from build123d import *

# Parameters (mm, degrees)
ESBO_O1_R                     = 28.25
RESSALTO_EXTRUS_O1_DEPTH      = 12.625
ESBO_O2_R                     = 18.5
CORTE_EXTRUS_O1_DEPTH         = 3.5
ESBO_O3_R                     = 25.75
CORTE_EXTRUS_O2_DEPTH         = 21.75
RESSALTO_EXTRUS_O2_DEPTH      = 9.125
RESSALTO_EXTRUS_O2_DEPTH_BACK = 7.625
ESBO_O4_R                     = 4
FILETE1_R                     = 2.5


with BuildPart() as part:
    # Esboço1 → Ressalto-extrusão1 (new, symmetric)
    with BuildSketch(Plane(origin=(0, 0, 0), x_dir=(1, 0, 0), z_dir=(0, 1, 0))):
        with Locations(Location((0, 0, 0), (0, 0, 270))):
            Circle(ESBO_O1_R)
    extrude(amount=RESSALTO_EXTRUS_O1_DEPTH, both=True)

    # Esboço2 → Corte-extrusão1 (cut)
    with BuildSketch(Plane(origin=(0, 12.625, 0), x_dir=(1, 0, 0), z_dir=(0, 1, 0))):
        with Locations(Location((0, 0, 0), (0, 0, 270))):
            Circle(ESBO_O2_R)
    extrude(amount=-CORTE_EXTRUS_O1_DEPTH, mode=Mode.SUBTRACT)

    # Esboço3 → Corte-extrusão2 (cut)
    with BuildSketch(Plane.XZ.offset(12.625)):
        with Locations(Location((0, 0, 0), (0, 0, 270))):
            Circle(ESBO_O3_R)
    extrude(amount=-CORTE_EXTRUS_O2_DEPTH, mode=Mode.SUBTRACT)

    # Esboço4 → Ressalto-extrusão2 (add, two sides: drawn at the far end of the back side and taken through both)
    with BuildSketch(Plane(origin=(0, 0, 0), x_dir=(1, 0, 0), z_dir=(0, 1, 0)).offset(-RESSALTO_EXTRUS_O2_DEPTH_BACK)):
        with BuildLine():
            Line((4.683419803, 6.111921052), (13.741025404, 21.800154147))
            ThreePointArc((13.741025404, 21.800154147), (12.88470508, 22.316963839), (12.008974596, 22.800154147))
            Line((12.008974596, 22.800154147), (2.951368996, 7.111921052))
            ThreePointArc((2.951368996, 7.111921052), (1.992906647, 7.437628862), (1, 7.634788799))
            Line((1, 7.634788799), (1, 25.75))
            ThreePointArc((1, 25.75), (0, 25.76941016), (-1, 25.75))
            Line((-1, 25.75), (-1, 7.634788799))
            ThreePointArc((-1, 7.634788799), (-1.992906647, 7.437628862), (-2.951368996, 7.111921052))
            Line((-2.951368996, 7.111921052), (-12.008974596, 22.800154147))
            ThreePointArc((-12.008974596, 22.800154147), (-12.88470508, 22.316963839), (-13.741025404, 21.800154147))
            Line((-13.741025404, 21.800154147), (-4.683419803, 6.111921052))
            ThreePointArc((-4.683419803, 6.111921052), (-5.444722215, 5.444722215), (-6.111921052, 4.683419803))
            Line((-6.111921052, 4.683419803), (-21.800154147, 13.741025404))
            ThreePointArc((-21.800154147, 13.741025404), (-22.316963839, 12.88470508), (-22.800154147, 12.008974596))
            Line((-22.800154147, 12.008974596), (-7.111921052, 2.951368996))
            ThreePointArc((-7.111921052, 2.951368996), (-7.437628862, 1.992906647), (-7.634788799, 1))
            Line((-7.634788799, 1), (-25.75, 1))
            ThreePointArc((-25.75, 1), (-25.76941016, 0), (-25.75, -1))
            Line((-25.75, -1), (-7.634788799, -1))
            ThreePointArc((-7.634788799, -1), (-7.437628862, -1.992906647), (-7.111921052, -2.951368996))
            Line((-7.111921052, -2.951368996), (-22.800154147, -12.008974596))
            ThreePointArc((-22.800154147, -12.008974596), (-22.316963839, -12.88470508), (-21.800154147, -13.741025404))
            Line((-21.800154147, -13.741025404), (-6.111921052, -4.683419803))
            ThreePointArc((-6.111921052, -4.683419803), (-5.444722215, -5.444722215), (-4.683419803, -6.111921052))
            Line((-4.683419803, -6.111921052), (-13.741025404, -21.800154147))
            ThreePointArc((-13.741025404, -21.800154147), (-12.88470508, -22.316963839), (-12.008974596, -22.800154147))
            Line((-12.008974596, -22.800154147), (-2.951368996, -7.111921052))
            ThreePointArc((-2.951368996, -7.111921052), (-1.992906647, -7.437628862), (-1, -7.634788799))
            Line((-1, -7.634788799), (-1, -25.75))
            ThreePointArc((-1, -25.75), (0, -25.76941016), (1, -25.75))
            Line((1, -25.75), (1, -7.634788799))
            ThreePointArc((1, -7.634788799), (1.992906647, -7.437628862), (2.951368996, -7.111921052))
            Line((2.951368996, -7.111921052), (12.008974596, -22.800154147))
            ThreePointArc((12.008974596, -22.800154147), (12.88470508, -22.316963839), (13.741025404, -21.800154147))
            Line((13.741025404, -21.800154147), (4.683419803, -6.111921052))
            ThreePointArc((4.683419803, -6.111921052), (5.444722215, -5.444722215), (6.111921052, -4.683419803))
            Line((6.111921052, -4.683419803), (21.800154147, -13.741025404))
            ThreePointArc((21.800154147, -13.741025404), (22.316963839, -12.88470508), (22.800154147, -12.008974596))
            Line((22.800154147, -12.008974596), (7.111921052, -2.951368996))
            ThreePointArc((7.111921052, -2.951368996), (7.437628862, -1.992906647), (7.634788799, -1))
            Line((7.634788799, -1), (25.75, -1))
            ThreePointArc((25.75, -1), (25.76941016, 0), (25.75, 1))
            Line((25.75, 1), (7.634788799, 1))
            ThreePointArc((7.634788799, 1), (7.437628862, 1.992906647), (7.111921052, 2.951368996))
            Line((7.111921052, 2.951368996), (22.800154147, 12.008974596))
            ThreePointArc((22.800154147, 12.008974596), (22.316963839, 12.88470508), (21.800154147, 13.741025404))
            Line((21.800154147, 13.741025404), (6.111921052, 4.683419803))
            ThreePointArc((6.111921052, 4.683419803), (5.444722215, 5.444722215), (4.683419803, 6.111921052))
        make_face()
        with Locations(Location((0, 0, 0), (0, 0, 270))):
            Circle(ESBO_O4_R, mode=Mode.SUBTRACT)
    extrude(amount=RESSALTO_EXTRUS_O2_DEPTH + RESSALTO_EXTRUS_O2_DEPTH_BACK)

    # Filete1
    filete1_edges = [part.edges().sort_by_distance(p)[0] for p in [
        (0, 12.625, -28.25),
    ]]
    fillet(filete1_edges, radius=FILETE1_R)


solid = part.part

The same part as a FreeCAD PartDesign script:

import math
import FreeCAD as App
import Part
import Sketcher
from FreeCAD import Vector
Q = App.Units.Quantity


def edges_at(feature, points):
    """Names of the edges that pass closest to the given points."""
    edges = feature.Shape.Edges
    near = lambda p: min(range(len(edges)), key=lambda i: edges[i].distToShape(Part.Vertex(*p))[0])
    return sorted({f"Edge{near(p) + 1}" for p in points})

doc = App.newDocument("Part")
body = doc.addObject("PartDesign::Body", "Body")

# Sketch on XZ plane
sketch1 = body.newObject("Sketcher::SketchObject", "Sketch")
sketch1.AttachmentSupport = (doc.getObject("XZ_Plane"), [""])
sketch1.MapMode = "FlatFace"
sketch1.addGeometry(Part.Circle(Vector(0, 0, 0), Vector(0, 0, 1), 28), False)
sketch1.addConstraint([
    Sketcher.Constraint("Coincident", 0, 3, -1, 1),
    Sketcher.Constraint("Diameter", 0, Q("56.5 mm")),
])
pad1 = body.newObject("PartDesign::Pad", "Pad")
pad1.Profile = sketch1
pad1.Length = 25.25
pad1.Midplane = True

# Sketch on XZ plane
sketch2 = body.newObject("Sketcher::SketchObject", "Sketch001")
sketch2.AttachmentSupport = (doc.getObject("XZ_Plane"), [""])
sketch2.MapMode = "FlatFace"
sketch2.AttachmentOffset = App.Placement(Vector(0, 0, -12.625), App.Rotation())
sketch2.addGeometry(Part.Circle(Vector(0, 0, 0), Vector(0, 0, 1), 18), False)
sketch2.addConstraint([
    Sketcher.Constraint("Coincident", 0, 3, -1, 1),
    Sketcher.Constraint("Diameter", 0, Q("37 mm")),
])
pocket1 = body.newObject("PartDesign::Pocket", "Pocket")
pocket1.Profile = sketch2
pocket1.Length = 3.5
pocket1.Reversed = True

# Sketch on XZ plane
sketch3 = body.newObject("Sketcher::SketchObject", "Sketch002")
sketch3.AttachmentSupport = (doc.getObject("XZ_Plane"), [""])
sketch3.MapMode = "FlatFace"
sketch3.AttachmentOffset = App.Placement(Vector(0, 0, 12.625), App.Rotation())
sketch3.addGeometry(Part.Circle(Vector(0, 0, 0), Vector(0, 0, 1), 26), False)
sketch3.addConstraint([
    Sketcher.Constraint("Coincident", 0, 3, -1, 1),
    Sketcher.Constraint("Diameter", 0, Q("51.5 mm")),
])
pocket2 = body.newObject("PartDesign::Pocket", "Pocket001")
pocket2.Profile = sketch3
pocket2.Length = 21.75

# Sketch on XZ plane
sketch4 = body.newObject("Sketcher::SketchObject", "Sketch003")
sketch4.AttachmentSupport = (doc.getObject("XZ_Plane"), [""])
sketch4.MapMode = "FlatFace"
sketch4.addGeometry([
    Part.LineSegment(Vector(4.7, -6.1, 0), Vector(13.7, -21.8, 0)),  # 0
    Part.ArcOfCircle(Part.Circle(Vector(0, 0, 0), Vector(0, 0, 1), 25.8), math.radians(-62.22), math.radians(-57.78)),  # 1
    Part.LineSegment(Vector(12, -22.8, 0), Vector(3, -7.1, 0)),  # 2
    Part.ArcOfCircle(Part.Circle(Vector(0, 0, 0), Vector(0, 0, 1), 7.7), math.radians(-82.54), math.radians(-67.46)),  # 3
    Part.LineSegment(Vector(1, -7.6, 0), Vector(1, -25.8, 0)),  # 4
    Part.ArcOfCircle(Part.Circle(Vector(0, 0, 0), Vector(0, 0, 1), 25.8), math.radians(-92.22), math.radians(-87.78)),  # 5
    Part.LineSegment(Vector(-1, -25.8, 0), Vector(-1, -7.6, 0)),  # 6
    Part.ArcOfCircle(Part.Circle(Vector(0, 0, 0), Vector(0, 0, 1), 7.7), math.radians(-112.54), math.radians(-97.46)),  # 7
    Part.LineSegment(Vector(-3, -7.1, 0), Vector(-12, -22.8, 0)),  # 8
    Part.ArcOfCircle(Part.Circle(Vector(0, 0, 0), Vector(0, 0, 1), 25.8), math.radians(-122.22), math.radians(-117.78)),  # 9
    Part.LineSegment(Vector(-13.7, -21.8, 0), Vector(-4.7, -6.1, 0)),  # 10
    Part.ArcOfCircle(Part.Circle(Vector(0, 0, 0), Vector(0, 0, 1), 7.7), math.radians(-142.54), math.radians(-127.46)),  # 11
    Part.LineSegment(Vector(-6.1, -4.7, 0), Vector(-21.8, -13.7, 0)),  # 12
    Part.ArcOfCircle(Part.Circle(Vector(0, 0, 0), Vector(0, 0, 1), 25.8), math.radians(-152.22), math.radians(-147.78)),  # 13
    Part.LineSegment(Vector(-22.8, -12, 0), Vector(-7.1, -3, 0)),  # 14
    Part.ArcOfCircle(Part.Circle(Vector(0, 0, 0), Vector(0, 0, 1), 7.7), math.radians(-172.54), math.radians(-157.46)),  # 15
    Part.LineSegment(Vector(-7.6, -1, 0), Vector(-25.8, -1, 0)),  # 16
    Part.ArcOfCircle(Part.Circle(Vector(0, 0, 0), Vector(0, 0, 1), 25.8), math.radians(177.78), math.radians(182.22)),  # 17
    Part.LineSegment(Vector(-25.8, 1, 0), Vector(-7.6, 1, 0)),  # 18
    Part.ArcOfCircle(Part.Circle(Vector(0, 0, 0), Vector(0, 0, 1), 7.7), math.radians(157.46), math.radians(172.54)),  # 19
    Part.LineSegment(Vector(-7.1, 3, 0), Vector(-22.8, 12, 0)),  # 20
    Part.ArcOfCircle(Part.Circle(Vector(0, 0, 0), Vector(0, 0, 1), 25.8), math.radians(147.78), math.radians(152.22)),  # 21
    Part.LineSegment(Vector(-21.8, 13.7, 0), Vector(-6.1, 4.7, 0)),  # 22
    Part.ArcOfCircle(Part.Circle(Vector(0, 0, 0), Vector(0, 0, 1), 7.7), math.radians(127.46), math.radians(142.54)),  # 23
    Part.LineSegment(Vector(-4.7, 6.1, 0), Vector(-13.7, 21.8, 0)),  # 24
    Part.ArcOfCircle(Part.Circle(Vector(0, 0, 0), Vector(0, 0, 1), 25.8), math.radians(117.78), math.radians(122.22)),  # 25
    Part.LineSegment(Vector(-12, 22.8, 0), Vector(-3, 7.1, 0)),  # 26
    Part.ArcOfCircle(Part.Circle(Vector(0, 0, 0), Vector(0, 0, 1), 7.7), math.radians(97.46), math.radians(112.54)),  # 27
    Part.LineSegment(Vector(-1, 7.6, 0), Vector(-1, 25.8, 0)),  # 28
    Part.ArcOfCircle(Part.Circle(Vector(0, 0, 0), Vector(0, 0, 1), 25.8), math.radians(87.78), math.radians(92.22)),  # 29
    Part.LineSegment(Vector(1, 25.8, 0), Vector(1, 7.6, 0)),  # 30
    Part.ArcOfCircle(Part.Circle(Vector(0, 0, 0), Vector(0, 0, 1), 7.7), math.radians(67.46), math.radians(82.54)),  # 31
    Part.LineSegment(Vector(3, 7.1, 0), Vector(12, 22.8, 0)),  # 32
    Part.ArcOfCircle(Part.Circle(Vector(0, 0, 0), Vector(0, 0, 1), 25.8), math.radians(57.78), math.radians(62.22)),  # 33
    Part.LineSegment(Vector(13.7, 21.8, 0), Vector(4.7, 6.1, 0)),  # 34
    Part.ArcOfCircle(Part.Circle(Vector(0, 0, 0), Vector(0, 0, 1), 7.7), math.radians(37.46), math.radians(52.54)),  # 35
    Part.LineSegment(Vector(6.1, 4.7, 0), Vector(21.8, 13.7, 0)),  # 36
    Part.ArcOfCircle(Part.Circle(Vector(0, 0, 0), Vector(0, 0, 1), 25.8), math.radians(27.78), math.radians(32.22)),  # 37
    Part.LineSegment(Vector(22.8, 12, 0), Vector(7.1, 3, 0)),  # 38
    Part.ArcOfCircle(Part.Circle(Vector(0, 0, 0), Vector(0, 0, 1), 7.7), math.radians(7.46), math.radians(22.54)),  # 39
    Part.LineSegment(Vector(7.6, 1, 0), Vector(25.8, 1, 0)),  # 40
    Part.ArcOfCircle(Part.Circle(Vector(0, 0, 0), Vector(0, 0, 1), 25.8), math.radians(-2.22), math.radians(2.22)),  # 41
    Part.LineSegment(Vector(25.8, -1, 0), Vector(7.6, -1, 0)),  # 42
    Part.ArcOfCircle(Part.Circle(Vector(0, 0, 0), Vector(0, 0, 1), 7.7), math.radians(-22.54), math.radians(-7.46)),  # 43
    Part.LineSegment(Vector(7.1, -3, 0), Vector(22.8, -12, 0)),  # 44
    Part.ArcOfCircle(Part.Circle(Vector(0, 0, 0), Vector(0, 0, 1), 25.8), math.radians(-32.22), math.radians(-27.78)),  # 45
    Part.LineSegment(Vector(21.8, -13.7, 0), Vector(6.1, -4.7, 0)),  # 46
    Part.ArcOfCircle(Part.Circle(Vector(0, 0, 0), Vector(0, 0, 1), 7.7), math.radians(-52.54), math.radians(-37.46)),  # 47
    Part.Circle(Vector(0, 0, 0), Vector(0, 0, 1), 4),  # 48
], False)
sketch4.addConstraint([
    Sketcher.Constraint("Coincident", 0, 2, 1, 2),
    Sketcher.Constraint("Coincident", 1, 1, 2, 1),
    Sketcher.Constraint("Coincident", 2, 2, 3, 2),
    Sketcher.Constraint("Coincident", 3, 1, 4, 1),
    Sketcher.Constraint("Coincident", 4, 2, 5, 2),
    Sketcher.Constraint("Coincident", 5, 1, 6, 1),
    Sketcher.Constraint("Coincident", 6, 2, 7, 2),
    Sketcher.Constraint("Coincident", 7, 1, 8, 1),
    Sketcher.Constraint("Coincident", 8, 2, 9, 2),
    Sketcher.Constraint("Coincident", 9, 1, 10, 1),
    Sketcher.Constraint("Coincident", 10, 2, 11, 2),
    Sketcher.Constraint("Coincident", 11, 1, 12, 1),
    Sketcher.Constraint("Coincident", 12, 2, 13, 2),
    Sketcher.Constraint("Coincident", 13, 1, 14, 1),
    Sketcher.Constraint("Coincident", 14, 2, 15, 2),
    Sketcher.Constraint("Coincident", 15, 1, 16, 1),
    Sketcher.Constraint("Coincident", 16, 2, 17, 2),
    Sketcher.Constraint("Coincident", 17, 1, 18, 1),
    Sketcher.Constraint("Coincident", 18, 2, 19, 2),
    Sketcher.Constraint("Coincident", 19, 1, 20, 1),
    Sketcher.Constraint("Coincident", 20, 2, 21, 2),
    Sketcher.Constraint("Coincident", 21, 1, 22, 1),
    Sketcher.Constraint("Coincident", 22, 2, 23, 2),
    Sketcher.Constraint("Coincident", 23, 1, 24, 1),
    Sketcher.Constraint("Coincident", 24, 2, 25, 2),
    Sketcher.Constraint("Coincident", 25, 1, 26, 1),
    Sketcher.Constraint("Coincident", 26, 2, 27, 2),
    Sketcher.Constraint("Coincident", 27, 1, 28, 1),
    Sketcher.Constraint("Coincident", 28, 2, 29, 2),
    Sketcher.Constraint("Coincident", 29, 1, 30, 1),
    Sketcher.Constraint("Coincident", 30, 2, 31, 2),
    Sketcher.Constraint("Coincident", 31, 1, 32, 1),
    Sketcher.Constraint("Coincident", 32, 2, 33, 2),
    Sketcher.Constraint("Coincident", 33, 1, 34, 1),
    Sketcher.Constraint("Coincident", 34, 2, 35, 2),
    Sketcher.Constraint("Coincident", 35, 1, 36, 1),
    Sketcher.Constraint("Coincident", 36, 2, 37, 2),
    Sketcher.Constraint("Coincident", 37, 1, 38, 1),
    Sketcher.Constraint("Coincident", 38, 2, 39, 2),
    Sketcher.Constraint("Coincident", 39, 1, 40, 1),
    Sketcher.Constraint("Coincident", 40, 2, 41, 2),
    Sketcher.Constraint("Coincident", 41, 1, 42, 1),
    Sketcher.Constraint("Coincident", 42, 2, 43, 2),
    Sketcher.Constraint("Coincident", 43, 1, 44, 1),
    Sketcher.Constraint("Coincident", 44, 2, 45, 2),
    Sketcher.Constraint("Coincident", 45, 1, 46, 1),
    Sketcher.Constraint("Coincident", 46, 2, 47, 2),
    Sketcher.Constraint("Coincident", 47, 1, 0, 1),
    Sketcher.Constraint("Vertical", 4),
    Sketcher.Constraint("Vertical", 6),
    Sketcher.Constraint("Horizontal", 16),
    Sketcher.Constraint("Horizontal", 18),
    Sketcher.Constraint("Vertical", 28),
    Sketcher.Constraint("Vertical", 30),
    Sketcher.Constraint("Horizontal", 40),
    Sketcher.Constraint("Horizontal", 42),
    Sketcher.Constraint("Coincident", 1, 3, -1, 1),
    Sketcher.Constraint("Coincident", 3, 3, -1, 1),
    Sketcher.Constraint("Coincident", 5, 3, -1, 1),
    Sketcher.Constraint("Coincident", 7, 3, -1, 1),
    Sketcher.Constraint("Coincident", 9, 3, -1, 1),
    Sketcher.Constraint("Coincident", 11, 3, -1, 1),
    Sketcher.Constraint("Coincident", 13, 3, -1, 1),
    Sketcher.Constraint("Coincident", 15, 3, -1, 1),
    Sketcher.Constraint("Coincident", 17, 3, -1, 1),
    Sketcher.Constraint("Coincident", 19, 3, -1, 1),
    Sketcher.Constraint("Coincident", 21, 3, -1, 1),
    Sketcher.Constraint("Coincident", 23, 3, -1, 1),
    Sketcher.Constraint("Coincident", 25, 3, -1, 1),
    Sketcher.Constraint("Coincident", 27, 3, -1, 1),
    Sketcher.Constraint("Coincident", 29, 3, -1, 1),
    Sketcher.Constraint("Coincident", 31, 3, -1, 1),
    Sketcher.Constraint("Coincident", 33, 3, -1, 1),
    Sketcher.Constraint("Coincident", 35, 3, -1, 1),
    Sketcher.Constraint("Coincident", 37, 3, -1, 1),
    Sketcher.Constraint("Coincident", 39, 3, -1, 1),
    Sketcher.Constraint("Coincident", 41, 3, -1, 1),
    Sketcher.Constraint("Coincident", 43, 3, -1, 1),
    Sketcher.Constraint("Coincident", 45, 3, -1, 1),
    Sketcher.Constraint("Coincident", 47, 3, -1, 1),
    Sketcher.Constraint("Coincident", 48, 3, -1, 1),
    Sketcher.Constraint("Equal", 1, 5),
    Sketcher.Constraint("Equal", 3, 7),
    Sketcher.Constraint("Equal", 5, 9),
    Sketcher.Constraint("Equal", 7, 11),
    Sketcher.Constraint("Equal", 9, 13),
    Sketcher.Constraint("Equal", 11, 15),
    Sketcher.Constraint("Equal", 13, 17),
    Sketcher.Constraint("Equal", 15, 19),
    Sketcher.Constraint("Equal", 17, 21),
    Sketcher.Constraint("Equal", 19, 23),
    Sketcher.Constraint("Equal", 21, 25),
    Sketcher.Constraint("Equal", 23, 27),
    Sketcher.Constraint("Equal", 25, 29),
    Sketcher.Constraint("Equal", 27, 31),
    Sketcher.Constraint("Equal", 29, 33),
    Sketcher.Constraint("Equal", 31, 35),
    Sketcher.Constraint("Equal", 33, 37),
    Sketcher.Constraint("Equal", 35, 39),
    Sketcher.Constraint("Equal", 37, 41),
    Sketcher.Constraint("Equal", 39, 43),
    Sketcher.Constraint("Equal", 41, 45),
    Sketcher.Constraint("Equal", 43, 47),
    Sketcher.Constraint("Parallel", 0, 2),
    Sketcher.Constraint("Parallel", 8, 10),
    Sketcher.Constraint("Perpendicular", 2, 12),
    Sketcher.Constraint("Parallel", 12, 14),
    Sketcher.Constraint("Perpendicular", 10, 20),
    Sketcher.Constraint("Parallel", 20, 22),
    Sketcher.Constraint("Perpendicular", 14, 24),
    Sketcher.Constraint("Parallel", 24, 26),
    Sketcher.Constraint("Perpendicular", 22, 32),
    Sketcher.Constraint("Parallel", 32, 34),
    Sketcher.Constraint("Perpendicular", 26, 36),
    Sketcher.Constraint("Parallel", 36, 38),
    Sketcher.Constraint("Perpendicular", 34, 44),
    Sketcher.Constraint("Parallel", 44, 46),
    Sketcher.Constraint("Horizontal", 4, 2, 5, 1),
    Sketcher.Constraint("Horizontal", 2, 2, 7, 1),
    Sketcher.Constraint("Horizontal", 1, 1, 8, 2),
    Sketcher.Constraint("Horizontal", 0, 2, 9, 1),
    Sketcher.Constraint("Horizontal", 28, 2, 29, 1),
    Sketcher.Constraint("Horizontal", 26, 2, 31, 1),
    Sketcher.Constraint("Horizontal", 24, 2, 33, 1),
    Sketcher.Constraint("Horizontal", 22, 2, 35, 1),
    Sketcher.Constraint("Horizontal", 20, 2, 37, 1),
    Sketcher.Constraint("Horizontal", 18, 2, 39, 1),
    Sketcher.Constraint("Horizontal", 16, 2, 41, 1),
    Sketcher.Constraint("Horizontal", 14, 2, 43, 1),
    Sketcher.Constraint("Horizontal", 12, 2, 45, 1),
    Sketcher.Constraint("Vertical", 16, 2, 17, 1),
    Sketcher.Constraint("Vertical", 14, 2, 19, 1),
    Sketcher.Constraint("Vertical", 12, 2, 21, 1),
    Sketcher.Constraint("Vertical", 10, 2, 23, 1),
    Sketcher.Constraint("Vertical", 8, 2, 25, 1),
    Sketcher.Constraint("Vertical", 6, 2, 27, 1),
    Sketcher.Constraint("Equal", 42, 4),
    Sketcher.Constraint("Equal", 0, 2),
    Sketcher.Constraint("Equal", 10, 12),
    Sketcher.Constraint("Equal", 12, 14),
    Sketcher.Constraint("Diameter", 48, Q("8 mm")),
    Sketcher.Constraint("Radius", 3, Q("7.7 mm")),
    Sketcher.Constraint("Angle", 0, Q("-60 deg")),
    Sketcher.Constraint("DistanceX", -1, 1, 3, 1, Q("1 mm")),
    Sketcher.Constraint("DistanceY", 4, 2, -1, 1, Q("25.75 mm")),
    Sketcher.Constraint("Distance", 0, Q("18.115211 mm")),
])
pad2 = body.newObject("PartDesign::Pad", "Pad001")
pad2.Profile = sketch4
pad2.Type = "TwoLengths"
pad2.Length = 9.125
pad2.Length2 = 7.625
pad2.Reversed = True
doc.recompute()

fillet = body.newObject("PartDesign::Fillet", "Fillet")
fillet.Base = (pad2, edges_at(pad2, [(0, 12.625, -28.25)]))
fillet.Radius = 2.5

doc.recompute()
